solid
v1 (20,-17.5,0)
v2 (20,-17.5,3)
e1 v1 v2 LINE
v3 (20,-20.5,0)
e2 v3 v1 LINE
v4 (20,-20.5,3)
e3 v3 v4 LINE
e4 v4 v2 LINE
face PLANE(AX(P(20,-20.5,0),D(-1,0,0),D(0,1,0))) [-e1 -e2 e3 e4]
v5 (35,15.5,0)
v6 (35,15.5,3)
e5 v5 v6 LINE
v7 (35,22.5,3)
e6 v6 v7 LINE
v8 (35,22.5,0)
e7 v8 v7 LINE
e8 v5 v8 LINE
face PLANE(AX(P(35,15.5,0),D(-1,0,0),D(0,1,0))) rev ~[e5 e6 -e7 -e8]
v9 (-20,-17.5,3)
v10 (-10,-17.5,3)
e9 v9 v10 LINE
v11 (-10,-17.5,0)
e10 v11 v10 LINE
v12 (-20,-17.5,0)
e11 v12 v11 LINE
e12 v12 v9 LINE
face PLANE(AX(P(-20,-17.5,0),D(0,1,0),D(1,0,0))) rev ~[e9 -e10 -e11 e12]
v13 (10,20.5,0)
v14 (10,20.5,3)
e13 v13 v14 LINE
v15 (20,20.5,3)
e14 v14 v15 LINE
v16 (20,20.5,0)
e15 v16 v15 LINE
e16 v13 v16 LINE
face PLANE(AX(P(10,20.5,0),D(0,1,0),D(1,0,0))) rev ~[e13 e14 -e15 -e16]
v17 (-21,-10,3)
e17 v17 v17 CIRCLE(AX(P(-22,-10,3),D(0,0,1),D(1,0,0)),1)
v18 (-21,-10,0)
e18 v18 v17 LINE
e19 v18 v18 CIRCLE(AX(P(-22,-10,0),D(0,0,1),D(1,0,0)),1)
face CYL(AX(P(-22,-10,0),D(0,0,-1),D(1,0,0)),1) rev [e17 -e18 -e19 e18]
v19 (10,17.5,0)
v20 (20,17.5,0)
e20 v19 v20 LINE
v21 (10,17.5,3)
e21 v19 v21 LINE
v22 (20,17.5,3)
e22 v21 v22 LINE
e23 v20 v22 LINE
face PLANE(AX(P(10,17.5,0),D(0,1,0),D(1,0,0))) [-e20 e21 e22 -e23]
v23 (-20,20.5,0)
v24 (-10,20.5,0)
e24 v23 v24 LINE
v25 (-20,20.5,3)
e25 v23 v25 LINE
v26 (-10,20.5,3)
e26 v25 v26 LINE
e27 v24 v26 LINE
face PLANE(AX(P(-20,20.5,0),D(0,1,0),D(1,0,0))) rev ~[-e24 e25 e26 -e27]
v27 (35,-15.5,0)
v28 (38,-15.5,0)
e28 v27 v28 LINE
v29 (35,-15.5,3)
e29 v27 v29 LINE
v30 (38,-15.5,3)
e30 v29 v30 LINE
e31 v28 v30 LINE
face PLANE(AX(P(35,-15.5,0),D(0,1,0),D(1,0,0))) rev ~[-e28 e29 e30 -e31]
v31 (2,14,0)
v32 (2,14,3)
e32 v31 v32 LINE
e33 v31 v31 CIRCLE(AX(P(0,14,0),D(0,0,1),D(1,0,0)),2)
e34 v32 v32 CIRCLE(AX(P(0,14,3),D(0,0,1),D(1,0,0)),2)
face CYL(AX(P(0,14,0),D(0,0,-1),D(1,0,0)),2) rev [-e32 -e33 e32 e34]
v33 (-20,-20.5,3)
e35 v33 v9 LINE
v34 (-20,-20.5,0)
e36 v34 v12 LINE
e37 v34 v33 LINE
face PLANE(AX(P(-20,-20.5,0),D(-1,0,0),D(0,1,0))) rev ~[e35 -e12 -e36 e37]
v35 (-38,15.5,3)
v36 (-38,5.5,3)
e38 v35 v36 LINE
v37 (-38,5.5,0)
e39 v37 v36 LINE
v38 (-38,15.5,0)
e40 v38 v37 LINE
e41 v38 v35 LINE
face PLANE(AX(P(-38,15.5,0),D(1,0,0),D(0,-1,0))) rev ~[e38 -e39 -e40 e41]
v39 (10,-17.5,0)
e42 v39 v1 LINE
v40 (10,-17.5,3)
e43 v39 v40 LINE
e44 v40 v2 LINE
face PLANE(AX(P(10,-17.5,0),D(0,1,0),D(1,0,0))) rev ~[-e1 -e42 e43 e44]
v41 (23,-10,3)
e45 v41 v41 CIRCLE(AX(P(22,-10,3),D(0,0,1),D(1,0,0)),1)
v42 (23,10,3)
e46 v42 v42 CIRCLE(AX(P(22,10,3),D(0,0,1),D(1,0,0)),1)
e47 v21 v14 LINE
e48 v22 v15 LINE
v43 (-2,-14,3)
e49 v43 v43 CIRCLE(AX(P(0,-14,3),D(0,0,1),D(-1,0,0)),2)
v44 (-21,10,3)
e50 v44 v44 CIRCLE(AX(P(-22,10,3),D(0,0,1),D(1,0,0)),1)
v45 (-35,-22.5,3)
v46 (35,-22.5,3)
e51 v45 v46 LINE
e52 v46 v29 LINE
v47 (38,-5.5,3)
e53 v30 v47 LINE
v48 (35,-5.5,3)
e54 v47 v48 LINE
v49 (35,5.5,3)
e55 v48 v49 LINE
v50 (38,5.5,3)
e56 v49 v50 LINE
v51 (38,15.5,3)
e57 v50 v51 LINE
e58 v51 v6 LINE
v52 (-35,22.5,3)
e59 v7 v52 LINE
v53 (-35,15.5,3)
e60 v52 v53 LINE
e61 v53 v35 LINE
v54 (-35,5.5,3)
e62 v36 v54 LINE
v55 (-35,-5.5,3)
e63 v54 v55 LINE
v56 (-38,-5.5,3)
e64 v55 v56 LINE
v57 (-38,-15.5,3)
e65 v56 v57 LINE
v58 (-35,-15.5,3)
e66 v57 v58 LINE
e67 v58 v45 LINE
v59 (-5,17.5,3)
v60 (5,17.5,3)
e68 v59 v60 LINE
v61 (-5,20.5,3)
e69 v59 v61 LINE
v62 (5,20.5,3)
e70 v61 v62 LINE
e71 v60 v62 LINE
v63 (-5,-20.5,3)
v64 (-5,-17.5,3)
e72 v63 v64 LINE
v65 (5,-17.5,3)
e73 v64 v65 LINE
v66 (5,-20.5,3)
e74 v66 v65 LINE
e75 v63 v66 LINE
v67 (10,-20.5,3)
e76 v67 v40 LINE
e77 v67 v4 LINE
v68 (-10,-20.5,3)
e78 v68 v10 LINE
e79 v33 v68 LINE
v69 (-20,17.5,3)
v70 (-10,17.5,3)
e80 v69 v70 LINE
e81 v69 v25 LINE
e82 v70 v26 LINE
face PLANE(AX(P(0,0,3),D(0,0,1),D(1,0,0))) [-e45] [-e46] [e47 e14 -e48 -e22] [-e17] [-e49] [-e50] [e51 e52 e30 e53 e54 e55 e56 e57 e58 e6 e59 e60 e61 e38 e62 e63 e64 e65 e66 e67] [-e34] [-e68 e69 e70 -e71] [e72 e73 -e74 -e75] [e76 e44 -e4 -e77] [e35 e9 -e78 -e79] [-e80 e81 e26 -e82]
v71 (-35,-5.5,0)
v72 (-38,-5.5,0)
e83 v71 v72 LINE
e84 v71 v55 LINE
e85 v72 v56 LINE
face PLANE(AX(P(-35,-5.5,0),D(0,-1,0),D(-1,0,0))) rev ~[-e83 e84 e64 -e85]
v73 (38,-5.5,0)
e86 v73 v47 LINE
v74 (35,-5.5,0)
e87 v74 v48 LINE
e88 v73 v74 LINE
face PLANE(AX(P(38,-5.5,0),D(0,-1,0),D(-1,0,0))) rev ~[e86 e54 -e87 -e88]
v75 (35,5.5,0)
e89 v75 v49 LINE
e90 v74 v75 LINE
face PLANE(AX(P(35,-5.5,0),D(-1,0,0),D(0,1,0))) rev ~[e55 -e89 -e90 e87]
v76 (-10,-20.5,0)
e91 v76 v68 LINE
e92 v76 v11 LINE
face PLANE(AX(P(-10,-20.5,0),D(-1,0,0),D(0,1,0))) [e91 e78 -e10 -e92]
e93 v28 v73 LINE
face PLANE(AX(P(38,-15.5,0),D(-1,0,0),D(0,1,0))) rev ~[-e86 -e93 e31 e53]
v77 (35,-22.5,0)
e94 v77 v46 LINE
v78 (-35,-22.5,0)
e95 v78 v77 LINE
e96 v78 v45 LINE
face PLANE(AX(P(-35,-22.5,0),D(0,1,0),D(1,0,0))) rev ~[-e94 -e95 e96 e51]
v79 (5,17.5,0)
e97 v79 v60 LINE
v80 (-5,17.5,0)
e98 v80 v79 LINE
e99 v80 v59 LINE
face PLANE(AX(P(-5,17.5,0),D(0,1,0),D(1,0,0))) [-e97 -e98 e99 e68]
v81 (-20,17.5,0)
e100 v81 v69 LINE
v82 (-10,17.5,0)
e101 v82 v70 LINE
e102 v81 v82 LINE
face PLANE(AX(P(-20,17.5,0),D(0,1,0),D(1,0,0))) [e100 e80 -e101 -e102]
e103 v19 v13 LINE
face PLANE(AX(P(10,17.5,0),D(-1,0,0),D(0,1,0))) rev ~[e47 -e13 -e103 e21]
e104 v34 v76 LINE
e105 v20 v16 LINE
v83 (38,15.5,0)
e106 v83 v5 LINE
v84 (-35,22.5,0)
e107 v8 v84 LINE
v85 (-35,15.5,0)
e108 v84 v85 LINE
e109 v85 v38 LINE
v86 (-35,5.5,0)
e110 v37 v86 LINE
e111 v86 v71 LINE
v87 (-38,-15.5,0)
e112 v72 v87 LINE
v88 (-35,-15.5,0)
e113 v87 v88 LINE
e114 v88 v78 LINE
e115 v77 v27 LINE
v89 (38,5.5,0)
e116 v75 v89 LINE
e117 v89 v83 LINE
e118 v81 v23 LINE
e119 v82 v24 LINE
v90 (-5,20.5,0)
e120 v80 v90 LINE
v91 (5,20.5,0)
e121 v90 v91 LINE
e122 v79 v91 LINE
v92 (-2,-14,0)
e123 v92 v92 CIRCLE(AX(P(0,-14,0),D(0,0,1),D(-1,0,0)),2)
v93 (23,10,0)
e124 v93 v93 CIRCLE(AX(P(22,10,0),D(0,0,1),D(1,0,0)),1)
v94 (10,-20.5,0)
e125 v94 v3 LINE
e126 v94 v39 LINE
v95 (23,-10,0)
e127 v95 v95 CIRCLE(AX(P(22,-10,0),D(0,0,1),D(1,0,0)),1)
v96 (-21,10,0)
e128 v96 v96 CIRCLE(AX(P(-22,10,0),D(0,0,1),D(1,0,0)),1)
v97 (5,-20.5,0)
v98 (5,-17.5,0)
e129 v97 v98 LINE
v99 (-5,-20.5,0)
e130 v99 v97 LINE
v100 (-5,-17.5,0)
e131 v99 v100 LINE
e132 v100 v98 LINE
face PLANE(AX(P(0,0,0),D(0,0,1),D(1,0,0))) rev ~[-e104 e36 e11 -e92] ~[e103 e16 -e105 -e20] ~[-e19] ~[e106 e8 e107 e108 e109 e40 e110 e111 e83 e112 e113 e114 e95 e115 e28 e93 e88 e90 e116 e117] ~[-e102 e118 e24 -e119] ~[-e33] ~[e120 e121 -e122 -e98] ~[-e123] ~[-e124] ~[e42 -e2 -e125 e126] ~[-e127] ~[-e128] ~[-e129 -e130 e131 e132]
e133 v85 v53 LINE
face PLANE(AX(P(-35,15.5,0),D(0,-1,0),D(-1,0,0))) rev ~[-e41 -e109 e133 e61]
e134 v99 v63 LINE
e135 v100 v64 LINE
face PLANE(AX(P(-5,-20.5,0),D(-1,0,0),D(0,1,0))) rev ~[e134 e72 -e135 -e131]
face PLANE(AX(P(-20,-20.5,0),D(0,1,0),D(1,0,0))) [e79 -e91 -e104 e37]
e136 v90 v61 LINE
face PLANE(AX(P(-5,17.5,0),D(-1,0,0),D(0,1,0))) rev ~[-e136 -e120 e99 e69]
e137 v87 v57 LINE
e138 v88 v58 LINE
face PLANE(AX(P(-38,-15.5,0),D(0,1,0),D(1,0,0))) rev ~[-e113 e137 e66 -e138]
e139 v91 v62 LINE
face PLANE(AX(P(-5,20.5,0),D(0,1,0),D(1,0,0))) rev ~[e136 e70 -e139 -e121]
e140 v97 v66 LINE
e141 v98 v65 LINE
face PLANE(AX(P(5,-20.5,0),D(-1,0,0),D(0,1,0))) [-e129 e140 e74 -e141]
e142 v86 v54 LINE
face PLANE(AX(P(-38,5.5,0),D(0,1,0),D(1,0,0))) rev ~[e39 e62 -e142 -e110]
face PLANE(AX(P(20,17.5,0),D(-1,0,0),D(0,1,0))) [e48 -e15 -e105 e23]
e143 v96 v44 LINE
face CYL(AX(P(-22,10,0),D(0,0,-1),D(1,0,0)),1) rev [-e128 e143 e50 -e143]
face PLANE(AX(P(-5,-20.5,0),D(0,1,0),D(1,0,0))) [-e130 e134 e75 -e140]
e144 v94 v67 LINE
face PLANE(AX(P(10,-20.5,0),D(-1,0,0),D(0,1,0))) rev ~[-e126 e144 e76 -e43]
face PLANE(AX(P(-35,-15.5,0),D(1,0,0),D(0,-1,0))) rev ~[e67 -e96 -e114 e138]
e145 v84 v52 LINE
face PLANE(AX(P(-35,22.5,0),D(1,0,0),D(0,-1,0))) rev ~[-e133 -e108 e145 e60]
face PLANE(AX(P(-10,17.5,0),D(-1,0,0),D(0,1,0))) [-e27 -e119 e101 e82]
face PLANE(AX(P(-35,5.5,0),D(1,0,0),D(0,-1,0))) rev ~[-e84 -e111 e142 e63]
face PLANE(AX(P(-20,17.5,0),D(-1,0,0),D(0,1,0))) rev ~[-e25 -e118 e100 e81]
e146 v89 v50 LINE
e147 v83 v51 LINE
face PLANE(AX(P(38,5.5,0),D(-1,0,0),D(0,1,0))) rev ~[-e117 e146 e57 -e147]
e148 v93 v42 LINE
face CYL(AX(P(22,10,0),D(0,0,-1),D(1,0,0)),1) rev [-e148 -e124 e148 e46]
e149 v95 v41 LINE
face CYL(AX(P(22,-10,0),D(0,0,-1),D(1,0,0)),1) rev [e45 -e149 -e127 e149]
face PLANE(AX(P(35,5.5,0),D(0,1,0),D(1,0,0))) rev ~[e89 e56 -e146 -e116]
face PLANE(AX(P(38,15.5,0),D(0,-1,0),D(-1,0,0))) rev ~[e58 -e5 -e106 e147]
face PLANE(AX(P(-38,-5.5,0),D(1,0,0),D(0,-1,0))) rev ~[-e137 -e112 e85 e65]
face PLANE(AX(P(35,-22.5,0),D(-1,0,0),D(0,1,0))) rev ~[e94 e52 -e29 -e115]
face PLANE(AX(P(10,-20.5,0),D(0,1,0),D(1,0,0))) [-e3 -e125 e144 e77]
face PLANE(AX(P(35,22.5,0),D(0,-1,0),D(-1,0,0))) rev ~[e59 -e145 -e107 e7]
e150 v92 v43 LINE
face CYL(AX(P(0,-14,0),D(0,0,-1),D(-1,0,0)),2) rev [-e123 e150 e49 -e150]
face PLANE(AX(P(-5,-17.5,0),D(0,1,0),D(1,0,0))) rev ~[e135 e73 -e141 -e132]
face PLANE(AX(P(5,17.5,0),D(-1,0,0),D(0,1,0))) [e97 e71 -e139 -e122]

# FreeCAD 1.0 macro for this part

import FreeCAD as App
import Part
import Sketcher
from FreeCAD import Vector

doc = App.newDocument("Part")
body = doc.addObject("PartDesign::Body", "Body")

# Sketch on XY plane
sketch1 = body.newObject("Sketcher::SketchObject", "Sketch")
sketch1.AttachmentSupport = (doc.getObject("XY_Plane"), [""])
sketch1.MapMode = "FlatFace"
sketch1.addGeometry([
    Part.LineSegment(Vector(-35, 15.5, 0), Vector(-38, 15.5, 0)),  # 0
    Part.LineSegment(Vector(-38, 15.5, 0), Vector(-38, 5.5, 0)),  # 1
    Part.LineSegment(Vector(-38, 5.5, 0), Vector(-35, 5.5, 0)),  # 2
    Part.LineSegment(Vector(-35, 5.5, 0), Vector(-35, -5.5, 0)),  # 3
    Part.LineSegment(Vector(-35, -5.5, 0), Vector(-38, -5.5, 0)),  # 4
    Part.LineSegment(Vector(-38, -5.5, 0), Vector(-38, -15.5, 0)),  # 5
    Part.LineSegment(Vector(-38, -15.5, 0), Vector(-35, -15.5, 0)),  # 6
    Part.LineSegment(Vector(-35, -15.5, 0), Vector(-35, -22.5, 0)),  # 7
    Part.LineSegment(Vector(-35, -22.5, 0), Vector(35, -22.5, 0)),  # 8
    Part.LineSegment(Vector(35, -22.5, 0), Vector(35, -15.5, 0)),  # 9
    Part.LineSegment(Vector(35, -15.5, 0), Vector(38, -15.5, 0)),  # 10
    Part.LineSegment(Vector(38, -15.5, 0), Vector(38, -5.5, 0)),  # 11
    Part.LineSegment(Vector(38, -5.5, 0), Vector(35, -5.5, 0)),  # 12
    Part.LineSegment(Vector(35, -5.5, 0), Vector(35, 5.5, 0)),  # 13
    Part.LineSegment(Vector(35, 5.5, 0), Vector(38, 5.5, 0)),  # 14
    Part.LineSegment(Vector(38, 5.5, 0), Vector(38, 15.5, 0)),  # 15
    Part.LineSegment(Vector(38, 15.5, 0), Vector(35, 15.5, 0)),  # 16
    Part.LineSegment(Vector(35, 15.5, 0), Vector(35, 22.5, 0)),  # 17
    Part.LineSegment(Vector(35, 22.5, 0), Vector(-35, 22.5, 0)),  # 18
    Part.LineSegment(Vector(-35, 22.5, 0), Vector(-35, 15.5, 0)),  # 19
    Part.LineSegment(Vector(-10, -20.5, 0), Vector(-20, -20.5, 0)),  # 20
    Part.LineSegment(Vector(-20, -20.5, 0), Vector(-20, -17.5, 0)),  # 21
    Part.LineSegment(Vector(-20, -17.5, 0), Vector(-10, -17.5, 0)),  # 22
    Part.LineSegment(Vector(-10, -17.5, 0), Vector(-10, -20.5, 0)),  # 23
    Part.Circle(Vector(-22, -10, 0), Vector(0, 0, 1), 1),  # 24
    Part.LineSegment(Vector(5, -20.5, 0), Vector(-5, -20.5, 0)),  # 25
    Part.LineSegment(Vector(-5, -20.5, 0), Vector(-5, -17.5, 0)),  # 26
    Part.LineSegment(Vector(-5, -17.5, 0), Vector(5, -17.5, 0)),  # 27
    Part.LineSegment(Vector(5, -17.5, 0), Vector(5, -20.5, 0)),  # 28
    Part.Circle(Vector(0, -14, 0), Vector(0, 0, 1), 2),  # 29
    Part.LineSegment(Vector(20, -20.5, 0), Vector(10, -20.5, 0)),  # 30
    Part.LineSegment(Vector(10, -20.5, 0), Vector(10, -17.5, 0)),  # 31
    Part.LineSegment(Vector(10, -17.5, 0), Vector(20, -17.5, 0)),  # 32
    Part.LineSegment(Vector(20, -17.5, 0), Vector(20, -20.5, 0)),  # 33
    Part.Circle(Vector(22, -10, 0), Vector(0, 0, 1), 1),  # 34
    Part.Circle(Vector(-22, 10, 0), Vector(0, 0, 1), 1),  # 35
    Part.LineSegment(Vector(-10, 17.5, 0), Vector(-20, 17.5, 0)),  # 36
    Part.LineSegment(Vector(-20, 17.5, 0), Vector(-20, 20.5, 0)),  # 37
    Part.LineSegment(Vector(-20, 20.5, 0), Vector(-10, 20.5, 0)),  # 38
    Part.LineSegment(Vector(-10, 20.5, 0), Vector(-10, 17.5, 0)),  # 39
    Part.Circle(Vector(22, 10, 0), Vector(0, 0, 1), 1),  # 40
    Part.Circle(Vector(0, 14, 0), Vector(0, 0, 1), 2),  # 41
    Part.LineSegment(Vector(5, 17.5, 0), Vector(-5, 17.5, 0)),  # 42
    Part.LineSegment(Vector(-5, 17.5, 0), Vector(-5, 20.5, 0)),  # 43
    Part.LineSegment(Vector(-5, 20.5, 0), Vector(5, 20.5, 0)),  # 44
    Part.LineSegment(Vector(5, 20.5, 0), Vector(5, 17.5, 0)),  # 45
    Part.LineSegment(Vector(20, 17.5, 0), Vector(10, 17.5, 0)),  # 46
    Part.LineSegment(Vector(10, 17.5, 0), Vector(10, 20.5, 0)),  # 47
    Part.LineSegment(Vector(10, 20.5, 0), Vector(20, 20.5, 0)),  # 48
    Part.LineSegment(Vector(20, 20.5, 0), Vector(20, 17.5, 0)),  # 49
], False)
sketch1.addConstraint([
    Sketcher.Constraint("Coincident", 0, 2, 1, 1),
    Sketcher.Constraint("Coincident", 1, 2, 2, 1),
    Sketcher.Constraint("Coincident", 2, 2, 3, 1),
    Sketcher.Constraint("Coincident", 3, 2, 4, 1),
    Sketcher.Constraint("Coincident", 4, 2, 5, 1),
    Sketcher.Constraint("Coincident", 5, 2, 6, 1),
    Sketcher.Constraint("Coincident", 6, 2, 7, 1),
    Sketcher.Constraint("Coincident", 7, 2, 8, 1),
    Sketcher.Constraint("Coincident", 8, 2, 9, 1),
    Sketcher.Constraint("Coincident", 9, 2, 10, 1),
    Sketcher.Constraint("Coincident", 10, 2, 11, 1),
    Sketcher.Constraint("Coincident", 11, 2, 12, 1),
    Sketcher.Constraint("Coincident", 12, 2, 13, 1),
    Sketcher.Constraint("Coincident", 13, 2, 14, 1),
    Sketcher.Constraint("Coincident", 14, 2, 15, 1),
    Sketcher.Constraint("Coincident", 15, 2, 16, 1),
    Sketcher.Constraint("Coincident", 16, 2, 17, 1),
    Sketcher.Constraint("Coincident", 17, 2, 18, 1),
    Sketcher.Constraint("Coincident", 18, 2, 19, 1),
    Sketcher.Constraint("Coincident", 19, 2, 0, 1),
    Sketcher.Constraint("Coincident", 20, 2, 21, 1),
    Sketcher.Constraint("Coincident", 21, 2, 22, 1),
    Sketcher.Constraint("Coincident", 22, 2, 23, 1),
    Sketcher.Constraint("Coincident", 23, 2, 20, 1),
    Sketcher.Constraint("Coincident", 25, 2, 26, 1),
    Sketcher.Constraint("Coincident", 26, 2, 27, 1),
    Sketcher.Constraint("Coincident", 27, 2, 28, 1),
    Sketcher.Constraint("Coincident", 28, 2, 25, 1),
    Sketcher.Constraint("Coincident", 30, 2, 31, 1),
    Sketcher.Constraint("Coincident", 31, 2, 32, 1),
    Sketcher.Constraint("Coincident", 32, 2, 33, 1),
    Sketcher.Constraint("Coincident", 33, 2, 30, 1),
    Sketcher.Constraint("Coincident", 36, 2, 37, 1),
    Sketcher.Constraint("Coincident", 37, 2, 38, 1),
    Sketcher.Constraint("Coincident", 38, 2, 39, 1),
    Sketcher.Constraint("Coincident", 39, 2, 36, 1),
    Sketcher.Constraint("Coincident", 42, 2, 43, 1),
    Sketcher.Constraint("Coincident", 43, 2, 44, 1),
    Sketcher.Constraint("Coincident", 44, 2, 45, 1),
    Sketcher.Constraint("Coincident", 45, 2, 42, 1),
    Sketcher.Constraint("Coincident", 46, 2, 47, 1),
    Sketcher.Constraint("Coincident", 47, 2, 48, 1),
    Sketcher.Constraint("Coincident", 48, 2, 49, 1),
    Sketcher.Constraint("Coincident", 49, 2, 46, 1),
    Sketcher.Constraint("Horizontal", 0),
    Sketcher.Constraint("Vertical", 1),
    Sketcher.Constraint("Horizontal", 2),
    Sketcher.Constraint("Vertical", 3),
    Sketcher.Constraint("Horizontal", 4),
    Sketcher.Constraint("Vertical", 5),
    Sketcher.Constraint("Horizontal", 6),
    Sketcher.Constraint("Vertical", 7),
    Sketcher.Constraint("Horizontal", 8),
    Sketcher.Constraint("Vertical", 9),
    Sketcher.Constraint("Horizontal", 10),
    Sketcher.Constraint("Vertical", 11),
    Sketcher.Constraint("Horizontal", 12),
    Sketcher.Constraint("Vertical", 13),
    Sketcher.Constraint("Horizontal", 14),
    Sketcher.Constraint("Vertical", 15),
    Sketcher.Constraint("Horizontal", 16),
    Sketcher.Constraint("Vertical", 17),
    Sketcher.Constraint("Horizontal", 18),
    Sketcher.Constraint("Vertical", 19),
    Sketcher.Constraint("Horizontal", 20),
    Sketcher.Constraint("Vertical", 21),
    Sketcher.Constraint("Horizontal", 22),
    Sketcher.Constraint("Vertical", 23),
    Sketcher.Constraint("Horizontal", 25),
    Sketcher.Constraint("Vertical", 26),
    Sketcher.Constraint("Horizontal", 27),
    Sketcher.Constraint("Vertical", 28),
    Sketcher.Constraint("Horizontal", 30),
    Sketcher.Constraint("Vertical", 31),
    Sketcher.Constraint("Horizontal", 32),
    Sketcher.Constraint("Vertical", 33),
    Sketcher.Constraint("Horizontal", 36),
    Sketcher.Constraint("Vertical", 37),
    Sketcher.Constraint("Horizontal", 38),
    Sketcher.Constraint("Vertical", 39),
    Sketcher.Constraint("Horizontal", 42),
    Sketcher.Constraint("Vertical", 43),
    Sketcher.Constraint("Horizontal", 44),
    Sketcher.Constraint("Vertical", 45),
    Sketcher.Constraint("Horizontal", 46),
    Sketcher.Constraint("Vertical", 47),
    Sketcher.Constraint("Horizontal", 48),
    Sketcher.Constraint("Vertical", 49),
    Sketcher.Constraint("Equal", 24, 34),
    Sketcher.Constraint("Equal", 34, 35),
    Sketcher.Constraint("Equal", 35, 40),
    Sketcher.Constraint("Equal", 29, 41),
    Sketcher.Constraint("Symmetric", 34, 3, 35, 3, -1, 1),
    Sketcher.Constraint("Symmetric", 24, 3, 40, 3, -1, 1),
    Sketcher.Constraint("Symmetric", 29, 3, 41, 3, -1, 1),
    Sketcher.Constraint("Symmetric", 0, 2, 10, 2, -1, 1),
    Sketcher.Constraint("Symmetric", 2, 2, 12, 2, -1, 1),
    Sketcher.Constraint("Symmetric", 4, 2, 14, 2, -1, 1),
    Sketcher.Constraint("Symmetric", 6, 2, 16, 2, -1, 1),
    Sketcher.Constraint("Symmetric", 8, 2, 18, 2, -1, 1),
    Sketcher.Constraint("Symmetric", 32, 2, 36, 2, -1, 1),
    Sketcher.Constraint("Symmetric", 30, 2, 38, 2, -1, 1),
    Sketcher.Constraint("Symmetric", 27, 2, 42, 2, -1, 1),
    Sketcher.Constraint("Symmetric", 25, 2, 44, 2, -1, 1),
    Sketcher.Constraint("Symmetric", 22, 2, 46, 2, -1, 1),
    Sketcher.Constraint("Symmetric", 20, 2, 48, 2, -1, 1),
    Sketcher.Constraint("Symmetric", 24, 3, 34, 3, -2),
    Sketcher.Constraint("Symmetric", 6, 2, 9, 2, -2),
    Sketcher.Constraint("Symmetric", 4, 2, 11, 2, -2),
    Sketcher.Constraint("Symmetric", 23, 2, 30, 2, -2),
    Sketcher.Constraint("Symmetric", 21, 2, 32, 2, -2),
    Sketcher.Constraint("PointOnObject", 29, 3, -2),
    Sketcher.Constraint("Horizontal", 23, 2, 25, 2),
    Sketcher.Constraint("Horizontal", 22, 2, 26, 2),
    Sketcher.Constraint("Vertical", 3, 2, 6, 2),
    Sketcher.Constraint("Vertical", 26, 2, 42, 2),
    Sketcher.Constraint("Equal", 22, 25),
    Sketcher.Constraint("Equal", 48, 1),
    Sketcher.Constraint("Equal", 16, 21),
    Sketcher.Constraint("Diameter", 24, 2.0),
    Sketcher.Constraint("Diameter", 29, 4.0),
    Sketcher.Constraint("DistanceX", 0, 2, 0, 1, 3.0),
    Sketcher.Constraint("DistanceX", 8, 1, 8, 2, 70.0),
    Sketcher.Constraint("DistanceX", 20, 2, 20, 1, 10.0),
    Sketcher.Constraint("DistanceY", 3, 2, 3, 1, 11.0),
    Sketcher.Constraint("DistanceY", 7, 2, 7, 1, 7.0),
    Sketcher.Constraint("DistanceX", 24, 3, -1, 1, 22.0),
    Sketcher.Constraint("DistanceY", 24, 3, -1, 1, 10.0),
    Sketcher.Constraint("DistanceY", 29, 3, -1, 1, 14.0),
    Sketcher.Constraint("DistanceX", 20, 2, -1, 1, 20.0),
    Sketcher.Constraint("DistanceY", 7, 2, 20, 2, 2.0),
])
pad1 = body.newObject("PartDesign::Pad", "Pad")
pad1.Profile = sketch1
pad1.Length = 3

doc.recompute()
